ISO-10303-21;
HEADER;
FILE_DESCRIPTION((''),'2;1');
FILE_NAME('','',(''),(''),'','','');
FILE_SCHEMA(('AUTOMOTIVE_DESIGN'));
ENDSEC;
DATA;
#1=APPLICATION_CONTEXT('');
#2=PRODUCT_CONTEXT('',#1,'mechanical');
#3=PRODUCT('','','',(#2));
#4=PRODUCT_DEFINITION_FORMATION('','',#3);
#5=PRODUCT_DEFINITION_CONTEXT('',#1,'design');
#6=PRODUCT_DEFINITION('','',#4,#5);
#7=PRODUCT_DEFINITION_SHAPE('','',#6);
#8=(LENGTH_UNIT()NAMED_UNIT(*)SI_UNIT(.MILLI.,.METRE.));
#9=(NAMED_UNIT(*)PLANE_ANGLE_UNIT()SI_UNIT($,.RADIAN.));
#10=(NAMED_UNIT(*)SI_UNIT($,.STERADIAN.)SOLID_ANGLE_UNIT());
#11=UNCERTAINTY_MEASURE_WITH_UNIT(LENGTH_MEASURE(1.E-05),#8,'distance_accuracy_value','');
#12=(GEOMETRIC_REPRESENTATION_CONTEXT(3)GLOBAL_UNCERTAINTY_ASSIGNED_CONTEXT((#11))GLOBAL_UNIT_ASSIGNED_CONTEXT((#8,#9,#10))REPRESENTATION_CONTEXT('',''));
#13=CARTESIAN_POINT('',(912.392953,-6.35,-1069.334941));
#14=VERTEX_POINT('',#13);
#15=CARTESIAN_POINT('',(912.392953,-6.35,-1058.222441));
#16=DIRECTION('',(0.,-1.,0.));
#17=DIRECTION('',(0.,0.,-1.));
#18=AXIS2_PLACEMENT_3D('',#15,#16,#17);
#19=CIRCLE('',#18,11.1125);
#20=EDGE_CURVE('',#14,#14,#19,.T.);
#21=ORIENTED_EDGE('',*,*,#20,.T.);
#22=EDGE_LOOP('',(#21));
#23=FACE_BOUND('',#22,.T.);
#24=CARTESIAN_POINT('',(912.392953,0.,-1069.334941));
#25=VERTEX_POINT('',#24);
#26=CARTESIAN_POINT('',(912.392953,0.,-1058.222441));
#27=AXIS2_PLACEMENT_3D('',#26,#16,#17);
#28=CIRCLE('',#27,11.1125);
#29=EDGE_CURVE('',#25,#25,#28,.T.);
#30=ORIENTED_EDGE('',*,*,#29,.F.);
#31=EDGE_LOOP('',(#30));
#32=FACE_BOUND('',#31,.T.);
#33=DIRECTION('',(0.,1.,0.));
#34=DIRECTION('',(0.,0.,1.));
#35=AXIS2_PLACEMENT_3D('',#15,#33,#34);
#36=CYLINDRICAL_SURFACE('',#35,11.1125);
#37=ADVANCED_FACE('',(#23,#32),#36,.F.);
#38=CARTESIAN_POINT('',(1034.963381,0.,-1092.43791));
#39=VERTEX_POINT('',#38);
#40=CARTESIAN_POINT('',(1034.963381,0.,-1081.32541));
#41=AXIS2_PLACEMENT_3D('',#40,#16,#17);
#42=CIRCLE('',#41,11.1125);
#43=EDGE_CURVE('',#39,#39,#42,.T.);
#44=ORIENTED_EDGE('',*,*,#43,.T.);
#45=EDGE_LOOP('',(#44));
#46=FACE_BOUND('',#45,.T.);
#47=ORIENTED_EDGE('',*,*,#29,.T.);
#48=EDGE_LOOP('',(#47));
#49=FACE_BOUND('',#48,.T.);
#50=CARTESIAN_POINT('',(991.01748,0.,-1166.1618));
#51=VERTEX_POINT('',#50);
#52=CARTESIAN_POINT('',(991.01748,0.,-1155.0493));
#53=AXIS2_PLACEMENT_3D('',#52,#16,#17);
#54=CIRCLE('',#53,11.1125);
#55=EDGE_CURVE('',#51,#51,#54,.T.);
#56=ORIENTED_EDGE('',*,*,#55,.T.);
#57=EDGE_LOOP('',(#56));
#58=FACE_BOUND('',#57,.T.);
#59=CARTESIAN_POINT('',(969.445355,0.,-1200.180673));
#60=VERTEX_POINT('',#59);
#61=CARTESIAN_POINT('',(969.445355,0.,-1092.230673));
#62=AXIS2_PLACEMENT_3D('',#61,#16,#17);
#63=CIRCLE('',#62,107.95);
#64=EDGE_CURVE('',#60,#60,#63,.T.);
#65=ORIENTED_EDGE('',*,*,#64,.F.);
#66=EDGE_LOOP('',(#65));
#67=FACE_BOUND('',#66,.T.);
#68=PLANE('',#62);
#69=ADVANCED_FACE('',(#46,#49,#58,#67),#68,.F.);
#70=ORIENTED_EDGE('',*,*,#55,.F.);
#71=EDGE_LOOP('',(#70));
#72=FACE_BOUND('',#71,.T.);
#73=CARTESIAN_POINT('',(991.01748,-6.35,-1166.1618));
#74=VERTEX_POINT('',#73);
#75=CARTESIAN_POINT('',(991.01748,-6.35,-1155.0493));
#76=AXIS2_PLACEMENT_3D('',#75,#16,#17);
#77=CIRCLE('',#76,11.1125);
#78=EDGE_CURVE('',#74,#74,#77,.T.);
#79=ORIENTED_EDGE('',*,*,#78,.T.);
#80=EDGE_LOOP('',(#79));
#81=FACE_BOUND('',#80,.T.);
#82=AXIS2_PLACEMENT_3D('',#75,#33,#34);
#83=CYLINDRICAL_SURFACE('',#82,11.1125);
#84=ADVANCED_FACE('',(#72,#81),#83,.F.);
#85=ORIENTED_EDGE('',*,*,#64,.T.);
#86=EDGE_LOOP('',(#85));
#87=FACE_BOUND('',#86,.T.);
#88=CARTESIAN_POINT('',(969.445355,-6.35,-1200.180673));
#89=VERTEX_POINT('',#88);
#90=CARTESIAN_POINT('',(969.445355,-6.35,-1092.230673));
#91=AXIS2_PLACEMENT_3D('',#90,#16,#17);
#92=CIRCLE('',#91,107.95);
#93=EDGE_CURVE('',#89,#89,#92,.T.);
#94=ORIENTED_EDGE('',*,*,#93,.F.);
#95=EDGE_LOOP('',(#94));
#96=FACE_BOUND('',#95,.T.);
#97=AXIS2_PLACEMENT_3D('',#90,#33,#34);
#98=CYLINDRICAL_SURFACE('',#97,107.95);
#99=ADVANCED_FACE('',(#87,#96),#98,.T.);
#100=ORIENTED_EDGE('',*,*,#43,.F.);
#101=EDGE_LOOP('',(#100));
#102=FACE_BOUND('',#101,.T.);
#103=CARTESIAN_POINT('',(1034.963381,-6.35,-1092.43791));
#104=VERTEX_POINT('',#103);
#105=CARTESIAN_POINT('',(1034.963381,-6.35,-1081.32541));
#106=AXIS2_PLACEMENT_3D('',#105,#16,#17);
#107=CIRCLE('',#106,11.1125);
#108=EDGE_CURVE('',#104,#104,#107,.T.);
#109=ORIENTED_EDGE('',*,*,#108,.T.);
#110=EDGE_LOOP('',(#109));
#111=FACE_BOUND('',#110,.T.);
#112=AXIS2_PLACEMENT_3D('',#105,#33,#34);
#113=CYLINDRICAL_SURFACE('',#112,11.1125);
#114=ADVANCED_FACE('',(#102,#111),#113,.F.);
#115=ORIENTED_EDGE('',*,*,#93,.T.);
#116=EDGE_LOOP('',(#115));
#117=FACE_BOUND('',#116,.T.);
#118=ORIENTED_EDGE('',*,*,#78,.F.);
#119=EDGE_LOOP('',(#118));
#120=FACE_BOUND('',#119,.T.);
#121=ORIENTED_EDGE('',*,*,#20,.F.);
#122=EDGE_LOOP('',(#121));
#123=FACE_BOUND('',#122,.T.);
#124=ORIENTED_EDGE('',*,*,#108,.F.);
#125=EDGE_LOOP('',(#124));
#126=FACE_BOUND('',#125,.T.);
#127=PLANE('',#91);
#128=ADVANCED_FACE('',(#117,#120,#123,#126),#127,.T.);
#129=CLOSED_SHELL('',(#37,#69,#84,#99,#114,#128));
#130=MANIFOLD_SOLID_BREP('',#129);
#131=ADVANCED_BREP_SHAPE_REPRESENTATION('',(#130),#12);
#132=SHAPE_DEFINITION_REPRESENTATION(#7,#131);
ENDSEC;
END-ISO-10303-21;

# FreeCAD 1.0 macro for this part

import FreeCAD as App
import Part
import Sketcher
Q = App.Units.Quantity

doc = App.newDocument("Part")
params = doc.addObject("Spreadsheet::Sheet", "Params")
for row, (alias, value) in enumerate([
    ("sketch1_diameter", "8.5 in"),
    ("sketch1_diameter2", "0.875 in"),
    ("pad1_length", "0.25 in"),
], start=1):
    params.set(f"A{row}", alias)
    params.set(f"B{row}", "=" + value)
    params.setAlias(f"B{row}", alias)

body = doc.addObject("PartDesign::Body", "Body")

sketch1 = body.newObject("Sketcher::SketchObject", "Sketch")
sketch1.AttachmentSupport = (doc.getObject("XZ_Plane"), [""])
sketch1.MapMode = "FlatFace"
sketch1.addGeometry([
    Part.Circle(App.Vector(969, -1092, 0), App.Vector(0, 0, 1), 108),
    Part.Circle(App.Vector(912, -1058, 0), App.Vector(0, 0, 1), 11),
    Part.Circle(App.Vector(1035, -1081, 0), App.Vector(0, 0, 1), 11),
    Part.Circle(App.Vector(991, -1155, 0), App.Vector(0, 0, 1), 11),
], False)
sketch1.addConstraint([
    Sketcher.Constraint("Equal", 1, 2),
    Sketcher.Constraint("Equal", 2, 3),
    Sketcher.Constraint("Diameter", 0, Q("8.5 in")),
    Sketcher.Constraint("Diameter", 1, Q("0.875 in")),
    Sketcher.Constraint("DistanceY", 3, 3, -1, 1, 1155.0493),
    Sketcher.Constraint("DistanceX", 3, 3, 2, 3, 43.945901),
    Sketcher.Constraint("DistanceY", 1, 3, -1, 1, 1058.222441),
    Sketcher.Constraint("DistanceX", -1, 1, 2, 3, 1034.963381),
    Sketcher.Constraint("DistanceY", 2, 3, -1, 1, 1081.32541),
    Sketcher.Constraint("DistanceX", -1, 1, 0, 3, 969.445355),
    Sketcher.Constraint("DistanceY", 0, 3, -1, 1, 1092.230673),
    Sketcher.Constraint("DistanceX", -1, 1, 1, 3, 912.392953),
])
sketch1.setExpression("Constraints[2]", "Params.sketch1_diameter")
sketch1.setExpression("Constraints[3]", "Params.sketch1_diameter2")
pad1 = body.newObject("PartDesign::Pad", "Pad")
pad1.Profile = sketch1
pad1.setExpression("Length", "Params.pad1_length")

doc.recompute()
